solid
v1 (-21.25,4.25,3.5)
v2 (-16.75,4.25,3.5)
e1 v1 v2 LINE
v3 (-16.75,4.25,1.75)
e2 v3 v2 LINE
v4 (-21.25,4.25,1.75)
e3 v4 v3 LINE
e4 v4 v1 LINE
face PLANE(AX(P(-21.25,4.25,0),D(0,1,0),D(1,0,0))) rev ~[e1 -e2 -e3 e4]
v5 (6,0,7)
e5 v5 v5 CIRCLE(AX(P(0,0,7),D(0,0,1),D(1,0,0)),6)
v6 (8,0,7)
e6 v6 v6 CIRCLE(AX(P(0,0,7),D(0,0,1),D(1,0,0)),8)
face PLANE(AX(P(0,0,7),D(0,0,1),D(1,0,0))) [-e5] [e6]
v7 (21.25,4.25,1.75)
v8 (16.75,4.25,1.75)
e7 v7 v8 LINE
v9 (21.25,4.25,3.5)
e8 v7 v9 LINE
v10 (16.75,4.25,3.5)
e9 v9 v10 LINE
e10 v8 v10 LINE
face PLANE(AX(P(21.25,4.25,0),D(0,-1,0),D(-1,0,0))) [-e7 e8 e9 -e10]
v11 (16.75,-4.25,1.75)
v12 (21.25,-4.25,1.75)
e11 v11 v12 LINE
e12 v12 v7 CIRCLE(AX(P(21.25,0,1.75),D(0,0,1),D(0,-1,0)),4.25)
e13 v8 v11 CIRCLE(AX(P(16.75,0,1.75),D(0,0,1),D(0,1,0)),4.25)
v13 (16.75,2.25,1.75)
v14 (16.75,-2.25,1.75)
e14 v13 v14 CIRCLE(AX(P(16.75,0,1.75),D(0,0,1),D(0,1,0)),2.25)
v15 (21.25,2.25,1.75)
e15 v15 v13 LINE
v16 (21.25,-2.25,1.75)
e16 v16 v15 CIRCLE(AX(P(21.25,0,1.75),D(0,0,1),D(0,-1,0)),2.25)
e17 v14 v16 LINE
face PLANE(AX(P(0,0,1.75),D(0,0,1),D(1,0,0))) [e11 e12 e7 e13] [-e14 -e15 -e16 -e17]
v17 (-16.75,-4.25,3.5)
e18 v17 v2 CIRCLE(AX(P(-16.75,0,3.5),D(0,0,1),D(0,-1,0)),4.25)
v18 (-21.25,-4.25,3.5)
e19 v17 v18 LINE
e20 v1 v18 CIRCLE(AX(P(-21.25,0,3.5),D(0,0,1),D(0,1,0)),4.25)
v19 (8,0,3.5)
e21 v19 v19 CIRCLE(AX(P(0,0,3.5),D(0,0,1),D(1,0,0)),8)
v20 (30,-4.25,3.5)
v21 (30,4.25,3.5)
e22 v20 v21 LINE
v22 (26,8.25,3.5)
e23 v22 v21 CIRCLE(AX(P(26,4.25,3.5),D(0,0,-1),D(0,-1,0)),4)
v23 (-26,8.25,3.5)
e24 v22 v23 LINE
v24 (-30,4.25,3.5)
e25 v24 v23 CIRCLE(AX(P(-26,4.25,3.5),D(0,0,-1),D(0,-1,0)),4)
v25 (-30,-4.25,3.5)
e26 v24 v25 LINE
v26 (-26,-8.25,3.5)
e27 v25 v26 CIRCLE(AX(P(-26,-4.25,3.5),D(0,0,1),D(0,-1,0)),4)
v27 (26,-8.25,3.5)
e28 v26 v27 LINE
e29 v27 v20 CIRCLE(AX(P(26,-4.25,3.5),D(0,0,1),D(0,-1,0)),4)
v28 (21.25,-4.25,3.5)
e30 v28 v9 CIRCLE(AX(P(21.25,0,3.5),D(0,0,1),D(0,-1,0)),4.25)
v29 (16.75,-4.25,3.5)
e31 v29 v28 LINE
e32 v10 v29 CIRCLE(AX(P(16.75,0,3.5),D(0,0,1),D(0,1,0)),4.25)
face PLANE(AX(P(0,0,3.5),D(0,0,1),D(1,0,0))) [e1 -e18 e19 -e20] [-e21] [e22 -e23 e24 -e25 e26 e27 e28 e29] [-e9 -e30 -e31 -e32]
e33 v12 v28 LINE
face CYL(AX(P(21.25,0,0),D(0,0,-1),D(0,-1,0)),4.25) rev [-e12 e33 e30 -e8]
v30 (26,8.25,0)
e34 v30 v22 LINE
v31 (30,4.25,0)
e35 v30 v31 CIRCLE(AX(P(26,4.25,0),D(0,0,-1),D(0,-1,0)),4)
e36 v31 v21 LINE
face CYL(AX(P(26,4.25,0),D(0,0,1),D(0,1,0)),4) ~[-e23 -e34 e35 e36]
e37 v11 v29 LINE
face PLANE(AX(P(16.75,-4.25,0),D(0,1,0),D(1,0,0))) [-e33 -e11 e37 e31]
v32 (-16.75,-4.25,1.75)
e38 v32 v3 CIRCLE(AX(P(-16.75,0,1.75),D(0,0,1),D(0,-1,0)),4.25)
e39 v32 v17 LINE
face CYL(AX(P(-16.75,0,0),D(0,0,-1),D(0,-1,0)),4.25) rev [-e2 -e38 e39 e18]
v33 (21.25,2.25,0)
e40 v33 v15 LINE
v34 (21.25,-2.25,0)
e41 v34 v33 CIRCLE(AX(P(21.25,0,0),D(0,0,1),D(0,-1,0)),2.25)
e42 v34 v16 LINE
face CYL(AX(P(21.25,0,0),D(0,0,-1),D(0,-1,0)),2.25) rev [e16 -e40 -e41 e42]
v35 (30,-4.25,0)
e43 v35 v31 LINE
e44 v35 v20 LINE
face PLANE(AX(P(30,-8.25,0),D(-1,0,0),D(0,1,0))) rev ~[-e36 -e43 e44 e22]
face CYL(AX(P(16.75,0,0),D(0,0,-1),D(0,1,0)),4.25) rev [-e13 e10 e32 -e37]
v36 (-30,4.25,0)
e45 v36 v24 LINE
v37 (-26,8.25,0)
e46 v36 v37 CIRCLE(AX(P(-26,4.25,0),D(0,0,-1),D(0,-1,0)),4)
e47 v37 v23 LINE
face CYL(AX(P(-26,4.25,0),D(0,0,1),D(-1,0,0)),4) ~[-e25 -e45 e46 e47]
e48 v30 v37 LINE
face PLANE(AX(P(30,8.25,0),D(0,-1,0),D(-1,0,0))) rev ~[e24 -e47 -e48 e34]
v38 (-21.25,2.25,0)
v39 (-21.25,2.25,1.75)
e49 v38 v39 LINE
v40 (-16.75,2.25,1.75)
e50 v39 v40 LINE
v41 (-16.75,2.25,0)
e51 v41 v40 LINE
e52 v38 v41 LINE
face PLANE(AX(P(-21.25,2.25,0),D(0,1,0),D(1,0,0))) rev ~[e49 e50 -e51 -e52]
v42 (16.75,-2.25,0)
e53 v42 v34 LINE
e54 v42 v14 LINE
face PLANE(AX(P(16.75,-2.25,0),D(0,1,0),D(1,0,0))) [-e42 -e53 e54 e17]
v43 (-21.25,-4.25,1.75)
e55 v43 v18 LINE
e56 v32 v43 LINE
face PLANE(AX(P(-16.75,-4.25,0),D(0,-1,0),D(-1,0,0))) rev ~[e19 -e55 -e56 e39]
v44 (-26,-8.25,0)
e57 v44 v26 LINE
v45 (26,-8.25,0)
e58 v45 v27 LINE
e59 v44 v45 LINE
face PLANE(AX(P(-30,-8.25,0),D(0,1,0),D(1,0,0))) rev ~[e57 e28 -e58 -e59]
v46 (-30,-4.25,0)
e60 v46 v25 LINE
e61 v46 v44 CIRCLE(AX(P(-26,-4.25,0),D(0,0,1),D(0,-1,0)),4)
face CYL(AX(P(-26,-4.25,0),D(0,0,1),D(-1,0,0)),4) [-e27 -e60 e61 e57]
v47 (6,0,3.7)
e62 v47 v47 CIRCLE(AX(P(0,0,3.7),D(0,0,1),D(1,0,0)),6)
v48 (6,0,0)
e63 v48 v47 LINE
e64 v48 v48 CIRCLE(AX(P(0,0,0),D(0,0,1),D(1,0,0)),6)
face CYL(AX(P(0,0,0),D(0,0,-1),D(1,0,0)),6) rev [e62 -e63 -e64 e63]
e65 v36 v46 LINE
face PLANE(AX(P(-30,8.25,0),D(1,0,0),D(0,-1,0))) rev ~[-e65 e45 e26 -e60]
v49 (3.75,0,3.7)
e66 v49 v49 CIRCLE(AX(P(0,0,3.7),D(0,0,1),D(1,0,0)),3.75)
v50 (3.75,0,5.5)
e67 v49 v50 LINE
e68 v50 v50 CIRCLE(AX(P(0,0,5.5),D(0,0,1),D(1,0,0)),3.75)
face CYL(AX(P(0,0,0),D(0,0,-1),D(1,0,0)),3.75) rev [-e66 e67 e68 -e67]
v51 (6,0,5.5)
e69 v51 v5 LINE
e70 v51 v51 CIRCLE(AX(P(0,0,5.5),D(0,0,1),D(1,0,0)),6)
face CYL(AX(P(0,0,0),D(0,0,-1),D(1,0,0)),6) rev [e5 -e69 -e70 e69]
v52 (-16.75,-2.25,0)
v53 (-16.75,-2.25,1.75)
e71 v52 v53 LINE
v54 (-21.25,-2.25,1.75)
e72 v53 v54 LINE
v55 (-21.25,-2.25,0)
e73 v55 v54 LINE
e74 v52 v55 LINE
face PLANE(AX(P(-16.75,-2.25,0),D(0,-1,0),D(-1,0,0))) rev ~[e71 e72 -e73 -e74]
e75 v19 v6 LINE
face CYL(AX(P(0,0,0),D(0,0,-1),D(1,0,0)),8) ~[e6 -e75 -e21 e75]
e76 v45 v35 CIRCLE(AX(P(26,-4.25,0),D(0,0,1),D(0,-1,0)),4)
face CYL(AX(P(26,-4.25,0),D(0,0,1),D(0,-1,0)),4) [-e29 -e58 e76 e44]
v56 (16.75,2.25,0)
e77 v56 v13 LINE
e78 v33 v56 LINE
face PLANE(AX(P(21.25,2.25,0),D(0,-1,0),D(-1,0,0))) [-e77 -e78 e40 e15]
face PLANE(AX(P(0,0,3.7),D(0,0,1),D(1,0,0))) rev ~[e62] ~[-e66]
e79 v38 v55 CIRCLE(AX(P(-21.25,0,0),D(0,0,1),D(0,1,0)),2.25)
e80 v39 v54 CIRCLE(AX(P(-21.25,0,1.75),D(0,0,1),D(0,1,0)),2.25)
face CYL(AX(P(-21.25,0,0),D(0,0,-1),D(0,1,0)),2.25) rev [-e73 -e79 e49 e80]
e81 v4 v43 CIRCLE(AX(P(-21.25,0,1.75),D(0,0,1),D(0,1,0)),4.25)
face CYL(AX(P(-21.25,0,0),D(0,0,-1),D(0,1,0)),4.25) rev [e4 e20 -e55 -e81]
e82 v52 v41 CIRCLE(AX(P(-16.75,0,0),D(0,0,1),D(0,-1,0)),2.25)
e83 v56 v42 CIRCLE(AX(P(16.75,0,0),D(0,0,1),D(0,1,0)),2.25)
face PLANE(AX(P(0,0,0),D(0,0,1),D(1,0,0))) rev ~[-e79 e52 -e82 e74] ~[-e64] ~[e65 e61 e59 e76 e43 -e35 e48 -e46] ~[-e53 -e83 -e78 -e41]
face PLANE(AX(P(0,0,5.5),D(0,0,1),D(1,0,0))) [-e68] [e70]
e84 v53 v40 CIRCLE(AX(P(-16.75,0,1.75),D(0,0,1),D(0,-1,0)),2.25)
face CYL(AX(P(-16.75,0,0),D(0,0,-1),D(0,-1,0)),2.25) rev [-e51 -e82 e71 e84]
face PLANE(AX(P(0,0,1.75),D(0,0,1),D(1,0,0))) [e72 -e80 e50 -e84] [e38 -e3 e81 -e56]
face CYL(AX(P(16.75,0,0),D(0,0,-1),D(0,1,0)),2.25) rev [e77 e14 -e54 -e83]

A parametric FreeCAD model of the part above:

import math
import FreeCAD as App
import Part
import Sketcher
from FreeCAD import Vector


def edges_at(feature, points):
    """Names of the edges that pass closest to the given points."""
    edges = feature.Shape.Edges
    near = lambda p: min(range(len(edges)), key=lambda i: edges[i].distToShape(Part.Vertex(*p))[0])
    return sorted({f"Edge{near(p) + 1}" for p in points})

doc = App.newDocument("Part")
body = doc.addObject("PartDesign::Body", "Body")

sketch1 = body.newObject("Sketcher::SketchObject", "Sketch")
sketch1.AttachmentSupport = (doc.getObject("XY_Plane"), [""])
sketch1.MapMode = "FlatFace"
sketch1.addGeometry([
    Part.LineSegment(Vector(-30, 8.25, 0), Vector(-30, -8.25, 0)),
    Part.LineSegment(Vector(-30, -8.25, 0), Vector(30, -8.25, 0)),
    Part.LineSegment(Vector(30, -8.25, 0), Vector(30, 8.25, 0)),
    Part.LineSegment(Vector(30, 8.25, 0), Vector(-30, 8.25, 0)),
    Part.ArcOfCircle(Part.Circle(Vector(-16.75, 0, 0), Vector(0, 0, 1), 4.25), math.radians(-90), math.radians(90)),
    Part.LineSegment(Vector(-16.75, -4.25, 0), Vector(-21.25, -4.25, 0)),
    Part.ArcOfCircle(Part.Circle(Vector(-21.25, 0, 0), Vector(0, 0, 1), 4.25), math.radians(90), math.radians(270)),
    Part.LineSegment(Vector(-21.25, 4.25, 0), Vector(-16.75, 4.25, 0)),
    Part.Circle(Vector(0, 0, 0), Vector(0, 0, 1), 8),
    Part.LineSegment(Vector(21.25, -4.25, 0), Vector(16.75, -4.25, 0)),
    Part.ArcOfCircle(Part.Circle(Vector(16.75, 0, 0), Vector(0, 0, 1), 4.25), math.radians(90), math.radians(270)),
    Part.LineSegment(Vector(16.75, 4.25, 0), Vector(21.25, 4.25, 0)),
    Part.ArcOfCircle(Part.Circle(Vector(21.25, 0, 0), Vector(0, 0, 1), 4.25), math.radians(-90), math.radians(90)),
], False)
sketch1.addConstraint([
    Sketcher.Constraint("Coincident", 0, 2, 1, 1),
    Sketcher.Constraint("Coincident", 1, 2, 2, 1),
    Sketcher.Constraint("Coincident", 2, 2, 3, 1),
    Sketcher.Constraint("Coincident", 3, 2, 0, 1),
    Sketcher.Constraint("Tangent", 4, 1, 5, 1),
    Sketcher.Constraint("Tangent", 5, 2, 6, 2),
    Sketcher.Constraint("Tangent", 6, 1, 7, 1),
    Sketcher.Constraint("Tangent", 7, 2, 4, 2),
    Sketcher.Constraint("Tangent", 9, 2, 10, 2),
    Sketcher.Constraint("Tangent", 10, 1, 11, 1),
    Sketcher.Constraint("Tangent", 11, 2, 12, 2),
    Sketcher.Constraint("Tangent", 12, 1, 9, 1),
    Sketcher.Constraint("Vertical", 0),
    Sketcher.Constraint("Horizontal", 1),
    Sketcher.Constraint("Vertical", 2),
    Sketcher.Constraint("Horizontal", 3),
    Sketcher.Constraint("Horizontal", 5),
    Sketcher.Constraint("Horizontal", 7),
    Sketcher.Constraint("Horizontal", 9),
    Sketcher.Constraint("Horizontal", 11),
    Sketcher.Constraint("Coincident", 8, 3, -1, 1),
    Sketcher.Constraint("Equal", 6, 10),
    Sketcher.Constraint("Symmetric", 4, 3, 10, 3, -1, 1),
    Sketcher.Constraint("Symmetric", 0, 2, 2, 2, -1, 1),
    Sketcher.Constraint("Symmetric", 6, 3, 12, 3, -2),
    Sketcher.Constraint("Diameter", 8, 16.0),
    Sketcher.Constraint("DistanceX", 1, 1, 1, 2, 60.0),
    Sketcher.Constraint("DistanceX", 5, 2, 5, 1, 4.5),
    Sketcher.Constraint("DistanceY", 0, 2, 0, 1, 16.5),
    Sketcher.Constraint("Radius", 4, 4.25),
    Sketcher.Constraint("DistanceX", 6, 3, 10, 3, 38.0),
])
pad1 = body.newObject("PartDesign::Pad", "Pad")
pad1.Profile = sketch1
pad1.Length = 3.5

sketch2 = body.newObject("Sketcher::SketchObject", "Sketch001")
sketch2.AttachmentSupport = (doc.getObject("XY_Plane"), [""])
sketch2.MapMode = "FlatFace"
sketch2.addGeometry([
    Part.ArcOfCircle(Part.Circle(Vector(16.75, 0, 0), Vector(0, 0, 1), 4.25), math.radians(90), math.radians(270)),
    Part.LineSegment(Vector(16.75, -4.25, 0), Vector(21.25, -4.25, 0)),
    Part.ArcOfCircle(Part.Circle(Vector(21.25, 0, 0), Vector(0, 0, 1), 4.25), math.radians(-90), math.radians(90)),
    Part.LineSegment(Vector(21.25, 4.25, 0), Vector(16.75, 4.25, 0)),
    Part.LineSegment(Vector(21.25, -2.25, 0), Vector(16.75, -2.25, 0)),
    Part.ArcOfCircle(Part.Circle(Vector(16.75, 0, 0), Vector(0, 0, 1), 2.25), math.radians(90), math.radians(270)),
    Part.LineSegment(Vector(16.75, 2.25, 0), Vector(21.25, 2.25, 0)),
    Part.ArcOfCircle(Part.Circle(Vector(21.25, 0, 0), Vector(0, 0, 1), 2.25), math.radians(-90), math.radians(90)),
    Part.LineSegment(Vector(-21.25, -4.25, 0), Vector(-16.75, -4.25, 0)),
    Part.ArcOfCircle(Part.Circle(Vector(-16.75, 0, 0), Vector(0, 0, 1), 4.25), math.radians(-90), math.radians(90)),
    Part.LineSegment(Vector(-16.75, 4.25, 0), Vector(-21.25, 4.25, 0)),
    Part.ArcOfCircle(Part.Circle(Vector(-21.25, 0, 0), Vector(0, 0, 1), 4.25), math.radians(90), math.radians(270)),
    Part.ArcOfCircle(Part.Circle(Vector(-16.75, 0, 0), Vector(0, 0, 1), 2.25), math.radians(-90), math.radians(90)),
    Part.LineSegment(Vector(-16.75, -2.25, 0), Vector(-21.25, -2.25, 0)),
    Part.ArcOfCircle(Part.Circle(Vector(-21.25, 0, 0), Vector(0, 0, 1), 2.25), math.radians(90), math.radians(270)),
    Part.LineSegment(Vector(-21.25, 2.25, 0), Vector(-16.75, 2.25, 0)),
], False)
sketch2.addConstraint([
    Sketcher.Constraint("Tangent", 0, 2, 1, 1),
    Sketcher.Constraint("Tangent", 1, 2, 2, 1),
    Sketcher.Constraint("Tangent", 2, 2, 3, 1),
    Sketcher.Constraint("Tangent", 3, 2, 0, 1),
    Sketcher.Constraint("Tangent", 4, 2, 5, 2),
    Sketcher.Constraint("Tangent", 5, 1, 6, 1),
    Sketcher.Constraint("Tangent", 6, 2, 7, 2),
    Sketcher.Constraint("Tangent", 7, 1, 4, 1),
    Sketcher.Constraint("Tangent", 8, 2, 9, 1),
    Sketcher.Constraint("Tangent", 9, 2, 10, 1),
    Sketcher.Constraint("Tangent", 10, 2, 11, 1),
    Sketcher.Constraint("Tangent", 11, 2, 8, 1),
    Sketcher.Constraint("Tangent", 12, 1, 13, 1),
    Sketcher.Constraint("Tangent", 13, 2, 14, 2),
    Sketcher.Constraint("Tangent", 14, 1, 15, 1),
    Sketcher.Constraint("Tangent", 15, 2, 12, 2),
    Sketcher.Constraint("Horizontal", 1),
    Sketcher.Constraint("Horizontal", 3),
    Sketcher.Constraint("Horizontal", 4),
    Sketcher.Constraint("Horizontal", 6),
    Sketcher.Constraint("Horizontal", 8),
    Sketcher.Constraint("Horizontal", 10),
    Sketcher.Constraint("Horizontal", 13),
    Sketcher.Constraint("Horizontal", 15),
    Sketcher.Constraint("Coincident", 5, 3, 0, 3),
    Sketcher.Constraint("Coincident", 12, 3, 9, 3),
    Sketcher.Constraint("Equal", 2, 9),
    Sketcher.Constraint("Equal", 7, 12),
    Sketcher.Constraint("Symmetric", 0, 3, 9, 3, -1, 1),
    Sketcher.Constraint("Symmetric", 2, 3, 11, 3, -2),
    Sketcher.Constraint("Vertical", 7, 3, 1, 2),
    Sketcher.Constraint("Vertical", 14, 3, 10, 2),
    Sketcher.Constraint("Radius", 5, 2.25),
    Sketcher.Constraint("DistanceX", 1, 1, 1, 2, 4.5),
    Sketcher.Constraint("DistanceY", 0, 2, 4, 2, 2.0),
    Sketcher.Constraint("DistanceX", 9, 3, 2, 3, 38.0),
])
pad2 = body.newObject("PartDesign::Pad", "Pad001")
pad2.Profile = sketch2
pad2.Length = 1.75

sketch3 = body.newObject("Sketcher::SketchObject", "Sketch002")
sketch3.AttachmentSupport = (doc.getObject("XY_Plane"), [""])
sketch3.MapMode = "FlatFace"
sketch3.addGeometry([
    Part.Circle(Vector(0, 0, 0), Vector(0, 0, 1), 8),
    Part.Circle(Vector(0, 0, 0), Vector(0, 0, 1), 6),
], False)
sketch3.addConstraint([
    Sketcher.Constraint("Coincident", 0, 3, -1, 1),
    Sketcher.Constraint("Coincident", 1, 3, -1, 1),
    Sketcher.Constraint("Diameter", 0, 16.0),
    Sketcher.Constraint("Diameter", 1, 12.0),
])
pad3 = body.newObject("PartDesign::Pad", "Pad002")
pad3.Profile = sketch3
pad3.Length = 7

sketch4 = body.newObject("Sketcher::SketchObject", "Sketch003")
sketch4.AttachmentSupport = (doc.getObject("XY_Plane"), [""])
sketch4.MapMode = "FlatFace"
sketch4.addGeometry([
    Part.Circle(Vector(0, 0, 0), Vector(0, 0, 1), 6),
    Part.Circle(Vector(0, 0, 0), Vector(0, 0, 1), 3.75),
], False)
sketch4.addConstraint([
    Sketcher.Constraint("Coincident", 0, 3, -1, 1),
    Sketcher.Constraint("Coincident", 1, 3, -1, 1),
    Sketcher.Constraint("Diameter", 0, 12.0),
    Sketcher.Constraint("Diameter", 1, 7.5),
])
pad4 = body.newObject("PartDesign::Pad", "Pad003")
pad4.Profile = sketch4
pad4.Length = 5.5

sketch5 = body.newObject("Sketcher::SketchObject", "Sketch004")
sketch5.AttachmentSupport = (doc.getObject("XY_Plane"), [""])
sketch5.MapMode = "FlatFace"
sketch5.addGeometry([
    Part.Circle(Vector(0, 0, 0), Vector(0, 0, 1), 6),
    Part.Circle(Vector(0, 0, 0), Vector(0, 0, 1), 3.75),
], False)
sketch5.addConstraint([
    Sketcher.Constraint("Coincident", 0, 3, -1, 1),
    Sketcher.Constraint("Coincident", 1, 3, -1, 1),
    Sketcher.Constraint("Diameter", 0, 12.0),
    Sketcher.Constraint("Diameter", 1, 7.5),
])
pocket1 = body.newObject("PartDesign::Pocket", "Pocket")
pocket1.Profile = sketch5
pocket1.Length = 3.7
pocket1.Reversed = True
doc.recompute()

fillet = body.newObject("PartDesign::Fillet", "Fillet")
fillet.Base = (pocket1, edges_at(pocket1, [
    (-30, -8.25, 1.75),
    (30, -8.25, 1.75),
    (30, 8.25, 1.75),
    (-30, 8.25, 1.75),
]))
fillet.Radius = 4

doc.recompute()
